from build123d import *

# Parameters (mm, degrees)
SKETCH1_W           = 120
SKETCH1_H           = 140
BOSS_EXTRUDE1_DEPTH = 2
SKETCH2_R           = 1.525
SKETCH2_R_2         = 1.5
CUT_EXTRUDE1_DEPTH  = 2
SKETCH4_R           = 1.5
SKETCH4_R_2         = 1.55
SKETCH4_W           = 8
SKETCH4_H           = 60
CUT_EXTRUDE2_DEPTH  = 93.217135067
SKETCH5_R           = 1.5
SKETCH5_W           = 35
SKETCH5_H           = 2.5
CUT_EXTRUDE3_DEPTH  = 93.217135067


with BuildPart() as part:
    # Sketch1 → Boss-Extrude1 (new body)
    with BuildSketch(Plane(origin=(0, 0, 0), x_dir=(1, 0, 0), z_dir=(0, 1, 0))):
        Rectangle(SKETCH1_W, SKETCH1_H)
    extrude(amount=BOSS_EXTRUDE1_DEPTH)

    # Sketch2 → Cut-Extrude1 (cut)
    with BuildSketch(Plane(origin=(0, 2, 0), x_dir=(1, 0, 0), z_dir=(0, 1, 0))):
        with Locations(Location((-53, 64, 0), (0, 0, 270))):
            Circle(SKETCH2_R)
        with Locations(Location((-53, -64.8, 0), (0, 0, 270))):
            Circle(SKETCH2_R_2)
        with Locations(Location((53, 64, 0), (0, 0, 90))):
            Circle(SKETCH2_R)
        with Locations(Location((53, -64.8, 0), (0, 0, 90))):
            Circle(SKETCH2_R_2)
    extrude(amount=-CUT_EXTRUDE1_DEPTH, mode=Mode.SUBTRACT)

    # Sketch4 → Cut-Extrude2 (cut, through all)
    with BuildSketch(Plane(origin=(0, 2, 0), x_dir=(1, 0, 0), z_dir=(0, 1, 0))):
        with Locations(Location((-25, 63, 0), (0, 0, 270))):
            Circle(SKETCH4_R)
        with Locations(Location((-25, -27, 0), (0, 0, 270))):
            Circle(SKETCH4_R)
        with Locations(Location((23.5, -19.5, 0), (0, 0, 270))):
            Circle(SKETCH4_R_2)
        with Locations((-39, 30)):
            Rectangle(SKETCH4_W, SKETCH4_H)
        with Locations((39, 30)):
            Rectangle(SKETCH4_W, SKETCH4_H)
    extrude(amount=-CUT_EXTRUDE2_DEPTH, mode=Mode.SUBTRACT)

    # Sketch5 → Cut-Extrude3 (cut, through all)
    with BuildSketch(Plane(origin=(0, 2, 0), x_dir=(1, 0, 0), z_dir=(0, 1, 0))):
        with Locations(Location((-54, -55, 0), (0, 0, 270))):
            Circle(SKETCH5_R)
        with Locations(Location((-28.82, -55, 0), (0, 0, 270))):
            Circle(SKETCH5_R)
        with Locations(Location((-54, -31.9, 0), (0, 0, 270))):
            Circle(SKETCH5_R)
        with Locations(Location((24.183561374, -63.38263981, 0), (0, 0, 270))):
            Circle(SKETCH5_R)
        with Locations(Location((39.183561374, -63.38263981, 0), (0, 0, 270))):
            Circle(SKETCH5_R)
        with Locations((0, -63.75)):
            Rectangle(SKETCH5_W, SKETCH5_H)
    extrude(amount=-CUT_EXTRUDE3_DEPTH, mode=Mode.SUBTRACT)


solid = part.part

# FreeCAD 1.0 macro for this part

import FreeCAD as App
import Part
import Sketcher

doc = App.newDocument("Part")
body = doc.addObject("PartDesign::Body", "Body")

sketch1 = body.newObject("Sketcher::SketchObject", "Sketch")
sketch1.AttachmentSupport = (doc.getObject("XZ_Plane"), [""])
sketch1.MapMode = "FlatFace"
sketch1.addGeometry(Part.LineSegment(App.Vector(-60, -70, 0), App.Vector(-60, 70, 0)), False)
sketch1.addGeometry(Part.LineSegment(App.Vector(-60, 70, 0), App.Vector(60, 70, 0)), False)
sketch1.addGeometry(Part.LineSegment(App.Vector(60, 70, 0), App.Vector(60, -70, 0)), False)
sketch1.addGeometry(Part.LineSegment(App.Vector(60, -70, 0), App.Vector(-60, -70, 0)), False)
sketch1.addConstraint(Sketcher.Constraint("Coincident", 0, 2, 1, 1))
sketch1.addConstraint(Sketcher.Constraint("Coincident", 1, 2, 2, 1))
sketch1.addConstraint(Sketcher.Constraint("Coincident", 2, 2, 3, 1))
sketch1.addConstraint(Sketcher.Constraint("Coincident", 3, 2, 0, 1))
sketch1.addConstraint(Sketcher.Constraint("Vertical", 0))
sketch1.addConstraint(Sketcher.Constraint("Horizontal", 1))
sketch1.addConstraint(Sketcher.Constraint("Vertical", 2))
sketch1.addConstraint(Sketcher.Constraint("Horizontal", 3))
sketch1.addConstraint(Sketcher.Constraint("Symmetric", 0, 2, 2, 2, -1, 1))
sketch1.addConstraint(Sketcher.Constraint("DistanceX", 1, 1, 1, 2, 120.0))
sketch1.addConstraint(Sketcher.Constraint("DistanceY", 0, 1, 0, 2, 140.0))
pad1 = body.newObject("PartDesign::Pad", "Pad")
pad1.Profile = sketch1
pad1.Length = 2
pad1.Reversed = True

sketch2 = body.newObject("Sketcher::SketchObject", "Sketch001")
sketch2.AttachmentSupport = (doc.getObject("XZ_Plane"), [""])
sketch2.MapMode = "FlatFace"
sketch2.AttachmentOffset = App.Placement(App.Vector(0, 0, -2), App.Rotation())
sketch2.addGeometry(Part.Circle(App.Vector(-53, -64, 0), App.Vector(0, 0, 1), 1.5), False)
sketch2.addGeometry(Part.Circle(App.Vector(-53, 64.8, 0), App.Vector(0, 0, 1), 1.5), False)
sketch2.addGeometry(Part.Circle(App.Vector(53, -64, 0), App.Vector(0, 0, 1), 1.5), False)
sketch2.addGeometry(Part.Circle(App.Vector(53, 64.8, 0), App.Vector(0, 0, 1), 1.5), False)
sketch2.addConstraint(Sketcher.Constraint("Equal", 0, 2))
sketch2.addConstraint(Sketcher.Constraint("Equal", 1, 3))
sketch2.addConstraint(Sketcher.Constraint("Symmetric", 0, 3, 2, 3, -2))
sketch2.addConstraint(Sketcher.Constraint("Symmetric", 1, 3, 3, 3, -2))
sketch2.addConstraint(Sketcher.Constraint("Vertical", 0, 3, 1, 3))
sketch2.addConstraint(Sketcher.Constraint("Diameter", 1, 3.0))
sketch2.addConstraint(Sketcher.Constraint("Diameter", 0, 3.05))
sketch2.addConstraint(Sketcher.Constraint("DistanceX", 0, 3, -1, 1, 53.0))
sketch2.addConstraint(Sketcher.Constraint("DistanceY", 0, 3, -1, 1, 64.0))
sketch2.addConstraint(Sketcher.Constraint("DistanceY", -1, 1, 1, 3, 64.8))
pocket1 = body.newObject("PartDesign::Pocket", "Pocket")
pocket1.Profile = sketch2
pocket1.Length = 2
pocket1.Reversed = True

sketch3 = body.newObject("Sketcher::SketchObject", "Sketch002")
sketch3.AttachmentSupport = (doc.getObject("XZ_Plane"), [""])
sketch3.MapMode = "FlatFace"
sketch3.AttachmentOffset = App.Placement(App.Vector(0, 0, -2), App.Rotation())
sketch3.addGeometry(Part.Circle(App.Vector(-25, -63, 0), App.Vector(0, 0, 1), 1.5), False)
sketch3.addGeometry(Part.Circle(App.Vector(-25, 27, 0), App.Vector(0, 0, 1), 1.5), False)
sketch3.addGeometry(Part.Circle(App.Vector(23.5, 19.5, 0), App.Vector(0, 0, 1), 1.6), False)
sketch3.addGeometry(Part.LineSegment(App.Vector(-43, -60, 0), App.Vector(-43, 0, 0)), False)
sketch3.addGeometry(Part.LineSegment(App.Vector(-43, 0, 0), App.Vector(-35, 0, 0)), False)
sketch3.addGeometry(Part.LineSegment(App.Vector(-35, 0, 0), App.Vector(-35, -60, 0)), False)
sketch3.addGeometry(Part.LineSegment(App.Vector(-35, -60, 0), App.Vector(-43, -60, 0)), False)
sketch3.addGeometry(Part.LineSegment(App.Vector(35, -60, 0), App.Vector(35, 0, 0)), False)
sketch3.addGeometry(Part.LineSegment(App.Vector(35, 0, 0), App.Vector(43, 0, 0)), False)
sketch3.addGeometry(Part.LineSegment(App.Vector(43, 0, 0), App.Vector(43, -60, 0)), False)
sketch3.addGeometry(Part.LineSegment(App.Vector(43, -60, 0), App.Vector(35, -60, 0)), False)
sketch3.addConstraint(Sketcher.Constraint("Coincident", 3, 2, 4, 1))
sketch3.addConstraint(Sketcher.Constraint("Coincident", 4, 2, 5, 1))
sketch3.addConstraint(Sketcher.Constraint("Coincident", 5, 2, 6, 1))
sketch3.addConstraint(Sketcher.Constraint("Coincident", 6, 2, 3, 1))
sketch3.addConstraint(Sketcher.Constraint("Coincident", 7, 2, 8, 1))
sketch3.addConstraint(Sketcher.Constraint("Coincident", 8, 2, 9, 1))
sketch3.addConstraint(Sketcher.Constraint("Coincident", 9, 2, 10, 1))
sketch3.addConstraint(Sketcher.Constraint("Coincident", 10, 2, 7, 1))
sketch3.addConstraint(Sketcher.Constraint("Vertical", 3))
sketch3.addConstraint(Sketcher.Constraint("Horizontal", 4))
sketch3.addConstraint(Sketcher.Constraint("Vertical", 5))
sketch3.addConstraint(Sketcher.Constraint("Horizontal", 6))
sketch3.addConstraint(Sketcher.Constraint("Vertical", 7))
sketch3.addConstraint(Sketcher.Constraint("Horizontal", 8))
sketch3.addConstraint(Sketcher.Constraint("Vertical", 9))
sketch3.addConstraint(Sketcher.Constraint("Horizontal", 10))
sketch3.addConstraint(Sketcher.Constraint("Equal", 0, 1))
sketch3.addConstraint(Sketcher.Constraint("Symmetric", 4, 2, 7, 2, -1, 1))
sketch3.addConstraint(Sketcher.Constraint("Symmetric", 3, 2, 8, 2, -2))
sketch3.addConstraint(Sketcher.Constraint("Horizontal", 6, 2, 9, 2))
sketch3.addConstraint(Sketcher.Constraint("Vertical", 0, 3, 1, 3))
sketch3.addConstraint(Sketcher.Constraint("Diameter", 0, 3.0))
sketch3.addConstraint(Sketcher.Constraint("Diameter", 2, 3.1))
sketch3.addConstraint(Sketcher.Constraint("DistanceX", 4, 1, 4, 2, 8.0))
sketch3.addConstraint(Sketcher.Constraint("DistanceY", 3, 1, 3, 2, 60.0))
sketch3.addConstraint(Sketcher.Constraint("DistanceX", 0, 3, -1, 1, 25.0))
sketch3.addConstraint(Sketcher.Constraint("DistanceY", 0, 3, -1, 1, 63.0))
sketch3.addConstraint(Sketcher.Constraint("DistanceY", -1, 1, 1, 3, 27.0))
sketch3.addConstraint(Sketcher.Constraint("DistanceX", 3, 2, -1, 1, 43.0))
sketch3.addConstraint(Sketcher.Constraint("DistanceX", -1, 1, 2, 3, 23.5))
sketch3.addConstraint(Sketcher.Constraint("DistanceY", -1, 1, 2, 3, 19.5))
pocket2 = body.newObject("PartDesign::Pocket", "Pocket001")
pocket2.Profile = sketch3
pocket2.Type = "ThroughAll"
pocket2.Reversed = True

sketch4 = body.newObject("Sketcher::SketchObject", "Sketch003")
sketch4.AttachmentSupport = (doc.getObject("XZ_Plane"), [""])
sketch4.MapMode = "FlatFace"
sketch4.AttachmentOffset = App.Placement(App.Vector(0, 0, -2), App.Rotation())
sketch4.addGeometry(Part.Circle(App.Vector(-54, 55, 0), App.Vector(0, 0, 1), 1.5), False)
sketch4.addGeometry(Part.Circle(App.Vector(-28.8, 55, 0), App.Vector(0, 0, 1), 1.5), False)
sketch4.addGeometry(Part.Circle(App.Vector(-54, 31.9, 0), App.Vector(0, 0, 1), 1.5), False)
sketch4.addGeometry(Part.Circle(App.Vector(24.2, 63.4, 0), App.Vector(0, 0, 1), 1.5), False)
sketch4.addGeometry(Part.Circle(App.Vector(39.2, 63.4, 0), App.Vector(0, 0, 1), 1.5), False)
sketch4.addGeometry(Part.LineSegment(App.Vector(-17.5, 62.5, 0), App.Vector(-17.5, 65, 0)), False)
sketch4.addGeometry(Part.LineSegment(App.Vector(-17.5, 65, 0), App.Vector(17.5, 65, 0)), False)
sketch4.addGeometry(Part.LineSegment(App.Vector(17.5, 65, 0), App.Vector(17.5, 62.5, 0)), False)
sketch4.addGeometry(Part.LineSegment(App.Vector(17.5, 62.5, 0), App.Vector(-17.5, 62.5, 0)), False)
sketch4.addConstraint(Sketcher.Constraint("Coincident", 5, 2, 6, 1))
sketch4.addConstraint(Sketcher.Constraint("Coincident", 6, 2, 7, 1))
sketch4.addConstraint(Sketcher.Constraint("Coincident", 7, 2, 8, 1))
sketch4.addConstraint(Sketcher.Constraint("Coincident", 8, 2, 5, 1))
sketch4.addConstraint(Sketcher.Constraint("Vertical", 5))
sketch4.addConstraint(Sketcher.Constraint("Horizontal", 6))
sketch4.addConstraint(Sketcher.Constraint("Vertical", 7))
sketch4.addConstraint(Sketcher.Constraint("Horizontal", 8))
sketch4.addConstraint(Sketcher.Constraint("Equal", 0, 1))
sketch4.addConstraint(Sketcher.Constraint("Equal", 1, 2))
sketch4.addConstraint(Sketcher.Constraint("Equal", 2, 3))
sketch4.addConstraint(Sketcher.Constraint("Equal", 3, 4))
sketch4.addConstraint(Sketcher.Constraint("Horizontal", 0, 3, 1, 3))
sketch4.addConstraint(Sketcher.Constraint("Horizontal", 3, 3, 4, 3))
sketch4.addConstraint(Sketcher.Constraint("Vertical", 0, 3, 2, 3))
sketch4.addConstraint(Sketcher.Constraint("Diameter", 0, 3.0))
sketch4.addConstraint(Sketcher.Constraint("DistanceX", 6, 1, 6, 2, 35.0))
sketch4.addConstraint(Sketcher.Constraint("DistanceY", 5, 1, 5, 2, 2.5))
sketch4.addConstraint(Sketcher.Constraint("DistanceX", 0, 3, -1, 1, 54.0))
sketch4.addConstraint(Sketcher.Constraint("DistanceY", -1, 1, 0, 3, 55.0))
sketch4.addConstraint(Sketcher.Constraint("DistanceY", -1, 1, 5, 2, 65.0))
sketch4.addConstraint(Sketcher.Constraint("DistanceX", 3, 3, 4, 3, 15.0))
sketch4.addConstraint(Sketcher.Constraint("DistanceY", -1, 1, 2, 3, 31.9))
sketch4.addConstraint(Sketcher.Constraint("DistanceX", 5, 2, -1, 1, 17.5))
sketch4.addConstraint(Sketcher.Constraint("DistanceX", 1, 3, -1, 1, 28.82))
sketch4.addConstraint(Sketcher.Constraint("DistanceX", -1, 1, 3, 3, 24.183561))
sketch4.addConstraint(Sketcher.Constraint("DistanceY", -1, 1, 3, 3, 63.38264))
pocket3 = body.newObject("PartDesign::Pocket", "Pocket002")
pocket3.Profile = sketch4
pocket3.Type = "ThroughAll"
pocket3.Reversed = True

doc.recompute()
